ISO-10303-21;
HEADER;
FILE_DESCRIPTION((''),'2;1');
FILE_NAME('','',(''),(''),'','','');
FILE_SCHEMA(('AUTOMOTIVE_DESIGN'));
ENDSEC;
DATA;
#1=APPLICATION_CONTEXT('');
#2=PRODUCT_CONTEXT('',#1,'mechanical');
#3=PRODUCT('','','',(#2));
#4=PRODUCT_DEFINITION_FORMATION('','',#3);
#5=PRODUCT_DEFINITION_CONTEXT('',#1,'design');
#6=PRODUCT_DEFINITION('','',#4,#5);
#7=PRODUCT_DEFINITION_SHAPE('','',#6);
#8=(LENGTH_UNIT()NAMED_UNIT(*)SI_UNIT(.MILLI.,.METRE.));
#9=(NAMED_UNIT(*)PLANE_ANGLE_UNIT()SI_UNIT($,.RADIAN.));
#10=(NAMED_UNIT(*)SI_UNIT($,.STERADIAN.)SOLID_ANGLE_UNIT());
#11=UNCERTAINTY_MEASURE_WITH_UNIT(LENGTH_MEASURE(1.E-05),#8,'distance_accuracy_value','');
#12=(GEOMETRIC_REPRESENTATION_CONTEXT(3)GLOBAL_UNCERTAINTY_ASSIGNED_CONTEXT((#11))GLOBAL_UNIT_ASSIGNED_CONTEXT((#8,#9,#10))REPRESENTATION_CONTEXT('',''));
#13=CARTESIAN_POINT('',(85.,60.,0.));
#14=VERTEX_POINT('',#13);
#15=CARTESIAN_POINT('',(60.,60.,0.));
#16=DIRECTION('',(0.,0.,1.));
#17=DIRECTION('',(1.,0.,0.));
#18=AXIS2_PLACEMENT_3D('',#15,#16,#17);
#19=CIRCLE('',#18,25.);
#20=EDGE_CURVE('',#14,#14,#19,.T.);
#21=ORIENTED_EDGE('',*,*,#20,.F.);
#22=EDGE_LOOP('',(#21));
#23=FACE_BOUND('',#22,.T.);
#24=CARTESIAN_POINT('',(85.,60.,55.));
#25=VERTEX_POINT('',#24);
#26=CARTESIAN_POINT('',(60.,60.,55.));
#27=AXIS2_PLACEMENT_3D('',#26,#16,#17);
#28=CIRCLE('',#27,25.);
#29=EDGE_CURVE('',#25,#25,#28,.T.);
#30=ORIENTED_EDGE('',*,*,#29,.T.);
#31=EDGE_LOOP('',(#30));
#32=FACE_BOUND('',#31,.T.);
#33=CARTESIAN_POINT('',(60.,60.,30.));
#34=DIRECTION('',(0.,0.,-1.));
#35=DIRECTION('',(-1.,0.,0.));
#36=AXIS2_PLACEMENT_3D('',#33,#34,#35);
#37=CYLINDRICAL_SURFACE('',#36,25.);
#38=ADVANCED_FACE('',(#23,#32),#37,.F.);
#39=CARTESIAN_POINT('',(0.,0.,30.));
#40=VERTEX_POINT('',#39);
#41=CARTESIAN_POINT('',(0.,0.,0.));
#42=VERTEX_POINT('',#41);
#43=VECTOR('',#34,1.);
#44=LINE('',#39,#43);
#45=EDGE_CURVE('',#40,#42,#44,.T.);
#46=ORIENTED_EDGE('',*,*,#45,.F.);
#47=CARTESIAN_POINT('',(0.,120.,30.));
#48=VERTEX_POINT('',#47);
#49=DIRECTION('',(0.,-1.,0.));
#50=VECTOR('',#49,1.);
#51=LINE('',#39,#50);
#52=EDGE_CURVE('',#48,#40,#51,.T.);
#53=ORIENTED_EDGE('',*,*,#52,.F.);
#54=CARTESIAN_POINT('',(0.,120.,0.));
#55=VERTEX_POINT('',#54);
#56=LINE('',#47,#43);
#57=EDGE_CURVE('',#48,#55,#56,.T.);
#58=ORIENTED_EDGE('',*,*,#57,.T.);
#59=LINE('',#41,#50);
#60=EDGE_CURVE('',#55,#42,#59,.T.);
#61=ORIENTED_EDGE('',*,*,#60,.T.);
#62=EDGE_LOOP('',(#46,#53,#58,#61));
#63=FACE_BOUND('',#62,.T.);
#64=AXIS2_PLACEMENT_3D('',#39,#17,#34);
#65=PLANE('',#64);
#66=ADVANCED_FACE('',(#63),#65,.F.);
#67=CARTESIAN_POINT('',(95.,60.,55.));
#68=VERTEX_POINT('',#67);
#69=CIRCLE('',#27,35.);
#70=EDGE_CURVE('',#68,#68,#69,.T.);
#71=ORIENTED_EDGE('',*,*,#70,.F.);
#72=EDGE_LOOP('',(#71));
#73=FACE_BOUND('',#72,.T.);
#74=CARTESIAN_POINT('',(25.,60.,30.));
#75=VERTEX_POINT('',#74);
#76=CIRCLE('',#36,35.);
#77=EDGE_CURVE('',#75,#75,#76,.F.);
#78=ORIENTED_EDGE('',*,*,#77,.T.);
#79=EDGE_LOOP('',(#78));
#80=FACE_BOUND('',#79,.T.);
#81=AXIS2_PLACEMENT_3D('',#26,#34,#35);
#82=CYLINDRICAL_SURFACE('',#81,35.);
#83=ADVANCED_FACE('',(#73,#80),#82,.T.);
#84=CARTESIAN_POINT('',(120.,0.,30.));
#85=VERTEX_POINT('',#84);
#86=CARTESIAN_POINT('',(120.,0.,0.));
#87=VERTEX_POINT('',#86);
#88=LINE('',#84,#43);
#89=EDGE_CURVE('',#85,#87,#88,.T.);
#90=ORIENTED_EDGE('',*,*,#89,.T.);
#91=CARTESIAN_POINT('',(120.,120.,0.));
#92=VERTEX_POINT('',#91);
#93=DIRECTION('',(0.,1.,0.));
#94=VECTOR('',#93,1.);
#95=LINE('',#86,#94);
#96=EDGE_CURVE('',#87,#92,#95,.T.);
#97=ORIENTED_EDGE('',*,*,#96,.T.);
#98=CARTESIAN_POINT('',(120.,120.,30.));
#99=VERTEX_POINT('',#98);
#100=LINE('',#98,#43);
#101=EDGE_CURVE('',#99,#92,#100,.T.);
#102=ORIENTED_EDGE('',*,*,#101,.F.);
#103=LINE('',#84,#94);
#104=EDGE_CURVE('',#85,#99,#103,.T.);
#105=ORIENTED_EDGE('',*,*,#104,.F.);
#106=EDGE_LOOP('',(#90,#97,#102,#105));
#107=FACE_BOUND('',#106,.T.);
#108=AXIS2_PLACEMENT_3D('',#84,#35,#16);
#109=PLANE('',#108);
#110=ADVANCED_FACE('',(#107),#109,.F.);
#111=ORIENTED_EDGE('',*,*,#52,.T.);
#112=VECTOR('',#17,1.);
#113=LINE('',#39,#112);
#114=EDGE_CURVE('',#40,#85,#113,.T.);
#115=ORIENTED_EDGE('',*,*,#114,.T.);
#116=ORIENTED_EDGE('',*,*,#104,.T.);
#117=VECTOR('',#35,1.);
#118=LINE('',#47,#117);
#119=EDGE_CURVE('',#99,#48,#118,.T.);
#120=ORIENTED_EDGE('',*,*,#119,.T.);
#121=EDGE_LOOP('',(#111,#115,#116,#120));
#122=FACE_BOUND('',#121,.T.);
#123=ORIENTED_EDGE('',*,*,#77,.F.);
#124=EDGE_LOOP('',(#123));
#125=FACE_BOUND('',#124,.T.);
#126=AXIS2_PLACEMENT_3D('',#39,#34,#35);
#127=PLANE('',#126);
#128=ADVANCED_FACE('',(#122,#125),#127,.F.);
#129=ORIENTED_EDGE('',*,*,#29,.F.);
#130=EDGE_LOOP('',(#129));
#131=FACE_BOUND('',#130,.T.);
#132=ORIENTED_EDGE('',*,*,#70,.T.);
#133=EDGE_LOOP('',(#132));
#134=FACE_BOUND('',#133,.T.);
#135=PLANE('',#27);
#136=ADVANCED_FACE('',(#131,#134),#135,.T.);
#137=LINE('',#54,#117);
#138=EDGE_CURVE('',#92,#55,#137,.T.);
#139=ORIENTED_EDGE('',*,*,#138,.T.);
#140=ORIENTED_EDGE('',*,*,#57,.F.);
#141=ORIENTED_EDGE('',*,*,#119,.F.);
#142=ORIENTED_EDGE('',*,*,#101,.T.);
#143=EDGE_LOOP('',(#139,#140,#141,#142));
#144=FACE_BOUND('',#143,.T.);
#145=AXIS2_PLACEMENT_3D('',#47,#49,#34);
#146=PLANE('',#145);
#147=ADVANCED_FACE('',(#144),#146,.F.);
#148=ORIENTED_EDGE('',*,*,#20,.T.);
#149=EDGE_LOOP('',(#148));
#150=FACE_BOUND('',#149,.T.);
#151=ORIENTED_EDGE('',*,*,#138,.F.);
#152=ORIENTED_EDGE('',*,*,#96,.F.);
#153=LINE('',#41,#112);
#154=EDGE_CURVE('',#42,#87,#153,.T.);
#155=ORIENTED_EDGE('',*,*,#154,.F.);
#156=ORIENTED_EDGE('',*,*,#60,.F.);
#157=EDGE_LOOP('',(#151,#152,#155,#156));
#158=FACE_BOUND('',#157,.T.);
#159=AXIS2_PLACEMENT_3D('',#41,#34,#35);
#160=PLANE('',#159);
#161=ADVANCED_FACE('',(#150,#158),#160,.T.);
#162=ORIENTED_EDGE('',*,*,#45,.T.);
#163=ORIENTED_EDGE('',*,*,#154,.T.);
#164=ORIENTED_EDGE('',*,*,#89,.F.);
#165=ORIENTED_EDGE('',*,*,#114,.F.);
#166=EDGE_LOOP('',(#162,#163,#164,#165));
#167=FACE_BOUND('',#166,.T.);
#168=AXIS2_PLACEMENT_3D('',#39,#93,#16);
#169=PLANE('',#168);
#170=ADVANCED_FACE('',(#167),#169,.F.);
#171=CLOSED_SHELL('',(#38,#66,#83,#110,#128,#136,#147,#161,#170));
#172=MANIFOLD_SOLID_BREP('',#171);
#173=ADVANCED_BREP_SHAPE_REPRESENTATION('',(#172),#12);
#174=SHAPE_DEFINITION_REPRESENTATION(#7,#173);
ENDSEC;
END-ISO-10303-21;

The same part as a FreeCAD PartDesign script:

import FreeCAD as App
import Part
import Sketcher

V = App.Vector
Q = App.Units.Quantity

doc = App.newDocument("Part")
body = doc.addObject("PartDesign::Body", "Body")

sketch1 = body.newObject("Sketcher::SketchObject", "Sketch")
sketch1.AttachmentSupport = (doc.getObject("XY_Plane"), [""])
sketch1.MapMode = "FlatFace"
sketch1.addGeometry([
    Part.LineSegment(V(0, 120, 0), V(0, 0, 0)),
    Part.LineSegment(V(0, 0, 0), V(120, 0, 0)),
    Part.LineSegment(V(120, 0, 0), V(120, 120, 0)),
    Part.LineSegment(V(120, 120, 0), V(0, 120, 0)),
    Part.Circle(V(60, 60, 0), V(0, 0, 1), 25),
], False)
sketch1.addConstraint([
    Sketcher.Constraint("Coincident", 0, 2, 1, 1),
    Sketcher.Constraint("Coincident", 1, 2, 2, 1),
    Sketcher.Constraint("Coincident", 2, 2, 3, 1),
    Sketcher.Constraint("Coincident", 3, 2, 0, 1),
    Sketcher.Constraint("Vertical", 0),
    Sketcher.Constraint("Horizontal", 1),
    Sketcher.Constraint("Vertical", 2),
    Sketcher.Constraint("Horizontal", 3),
    Sketcher.Constraint("Coincident", 0, 2, -1, 1),
    Sketcher.Constraint("Equal", 3, 0),
    Sketcher.Constraint("Diameter", 4, Q("50 mm")),
    Sketcher.Constraint("DistanceX", 1, 1, 1, 2, Q("120 mm")),
    Sketcher.Constraint("DistanceX", -1, 1, 4, 3, Q("60 mm")),
    Sketcher.Constraint("DistanceY", -1, 1, 4, 3, Q("60 mm")),
])
pad1 = body.newObject("PartDesign::Pad", "Pad")
pad1.Profile = sketch1
pad1.Length = 30

sketch2 = body.newObject("Sketcher::SketchObject", "Sketch001")
sketch2.AttachmentSupport = (doc.getObject("XY_Plane"), [""])
sketch2.MapMode = "FlatFace"
sketch2.AttachmentOffset = App.Placement(V(0, 0, 30), App.Rotation())
sketch2.addGeometry([
    Part.Circle(V(60, 60, 0), V(0, 0, 1), 35),
    Part.Circle(V(60, 60, 0), V(0, 0, 1), 25),
], False)
sketch2.addConstraint([
    Sketcher.Constraint("Coincident", 1, 3, 0, 3),
    Sketcher.Constraint("Diameter", 0, Q("70 mm")),
    Sketcher.Constraint("Diameter", 1, Q("50 mm")),
    Sketcher.Constraint("DistanceX", -1, 1, 0, 3, Q("60 mm")),
    Sketcher.Constraint("DistanceY", -1, 1, 0, 3, Q("60 mm")),
])
pad2 = body.newObject("PartDesign::Pad", "Pad001")
pad2.Profile = sketch2
pad2.Length = 25

doc.recompute()
